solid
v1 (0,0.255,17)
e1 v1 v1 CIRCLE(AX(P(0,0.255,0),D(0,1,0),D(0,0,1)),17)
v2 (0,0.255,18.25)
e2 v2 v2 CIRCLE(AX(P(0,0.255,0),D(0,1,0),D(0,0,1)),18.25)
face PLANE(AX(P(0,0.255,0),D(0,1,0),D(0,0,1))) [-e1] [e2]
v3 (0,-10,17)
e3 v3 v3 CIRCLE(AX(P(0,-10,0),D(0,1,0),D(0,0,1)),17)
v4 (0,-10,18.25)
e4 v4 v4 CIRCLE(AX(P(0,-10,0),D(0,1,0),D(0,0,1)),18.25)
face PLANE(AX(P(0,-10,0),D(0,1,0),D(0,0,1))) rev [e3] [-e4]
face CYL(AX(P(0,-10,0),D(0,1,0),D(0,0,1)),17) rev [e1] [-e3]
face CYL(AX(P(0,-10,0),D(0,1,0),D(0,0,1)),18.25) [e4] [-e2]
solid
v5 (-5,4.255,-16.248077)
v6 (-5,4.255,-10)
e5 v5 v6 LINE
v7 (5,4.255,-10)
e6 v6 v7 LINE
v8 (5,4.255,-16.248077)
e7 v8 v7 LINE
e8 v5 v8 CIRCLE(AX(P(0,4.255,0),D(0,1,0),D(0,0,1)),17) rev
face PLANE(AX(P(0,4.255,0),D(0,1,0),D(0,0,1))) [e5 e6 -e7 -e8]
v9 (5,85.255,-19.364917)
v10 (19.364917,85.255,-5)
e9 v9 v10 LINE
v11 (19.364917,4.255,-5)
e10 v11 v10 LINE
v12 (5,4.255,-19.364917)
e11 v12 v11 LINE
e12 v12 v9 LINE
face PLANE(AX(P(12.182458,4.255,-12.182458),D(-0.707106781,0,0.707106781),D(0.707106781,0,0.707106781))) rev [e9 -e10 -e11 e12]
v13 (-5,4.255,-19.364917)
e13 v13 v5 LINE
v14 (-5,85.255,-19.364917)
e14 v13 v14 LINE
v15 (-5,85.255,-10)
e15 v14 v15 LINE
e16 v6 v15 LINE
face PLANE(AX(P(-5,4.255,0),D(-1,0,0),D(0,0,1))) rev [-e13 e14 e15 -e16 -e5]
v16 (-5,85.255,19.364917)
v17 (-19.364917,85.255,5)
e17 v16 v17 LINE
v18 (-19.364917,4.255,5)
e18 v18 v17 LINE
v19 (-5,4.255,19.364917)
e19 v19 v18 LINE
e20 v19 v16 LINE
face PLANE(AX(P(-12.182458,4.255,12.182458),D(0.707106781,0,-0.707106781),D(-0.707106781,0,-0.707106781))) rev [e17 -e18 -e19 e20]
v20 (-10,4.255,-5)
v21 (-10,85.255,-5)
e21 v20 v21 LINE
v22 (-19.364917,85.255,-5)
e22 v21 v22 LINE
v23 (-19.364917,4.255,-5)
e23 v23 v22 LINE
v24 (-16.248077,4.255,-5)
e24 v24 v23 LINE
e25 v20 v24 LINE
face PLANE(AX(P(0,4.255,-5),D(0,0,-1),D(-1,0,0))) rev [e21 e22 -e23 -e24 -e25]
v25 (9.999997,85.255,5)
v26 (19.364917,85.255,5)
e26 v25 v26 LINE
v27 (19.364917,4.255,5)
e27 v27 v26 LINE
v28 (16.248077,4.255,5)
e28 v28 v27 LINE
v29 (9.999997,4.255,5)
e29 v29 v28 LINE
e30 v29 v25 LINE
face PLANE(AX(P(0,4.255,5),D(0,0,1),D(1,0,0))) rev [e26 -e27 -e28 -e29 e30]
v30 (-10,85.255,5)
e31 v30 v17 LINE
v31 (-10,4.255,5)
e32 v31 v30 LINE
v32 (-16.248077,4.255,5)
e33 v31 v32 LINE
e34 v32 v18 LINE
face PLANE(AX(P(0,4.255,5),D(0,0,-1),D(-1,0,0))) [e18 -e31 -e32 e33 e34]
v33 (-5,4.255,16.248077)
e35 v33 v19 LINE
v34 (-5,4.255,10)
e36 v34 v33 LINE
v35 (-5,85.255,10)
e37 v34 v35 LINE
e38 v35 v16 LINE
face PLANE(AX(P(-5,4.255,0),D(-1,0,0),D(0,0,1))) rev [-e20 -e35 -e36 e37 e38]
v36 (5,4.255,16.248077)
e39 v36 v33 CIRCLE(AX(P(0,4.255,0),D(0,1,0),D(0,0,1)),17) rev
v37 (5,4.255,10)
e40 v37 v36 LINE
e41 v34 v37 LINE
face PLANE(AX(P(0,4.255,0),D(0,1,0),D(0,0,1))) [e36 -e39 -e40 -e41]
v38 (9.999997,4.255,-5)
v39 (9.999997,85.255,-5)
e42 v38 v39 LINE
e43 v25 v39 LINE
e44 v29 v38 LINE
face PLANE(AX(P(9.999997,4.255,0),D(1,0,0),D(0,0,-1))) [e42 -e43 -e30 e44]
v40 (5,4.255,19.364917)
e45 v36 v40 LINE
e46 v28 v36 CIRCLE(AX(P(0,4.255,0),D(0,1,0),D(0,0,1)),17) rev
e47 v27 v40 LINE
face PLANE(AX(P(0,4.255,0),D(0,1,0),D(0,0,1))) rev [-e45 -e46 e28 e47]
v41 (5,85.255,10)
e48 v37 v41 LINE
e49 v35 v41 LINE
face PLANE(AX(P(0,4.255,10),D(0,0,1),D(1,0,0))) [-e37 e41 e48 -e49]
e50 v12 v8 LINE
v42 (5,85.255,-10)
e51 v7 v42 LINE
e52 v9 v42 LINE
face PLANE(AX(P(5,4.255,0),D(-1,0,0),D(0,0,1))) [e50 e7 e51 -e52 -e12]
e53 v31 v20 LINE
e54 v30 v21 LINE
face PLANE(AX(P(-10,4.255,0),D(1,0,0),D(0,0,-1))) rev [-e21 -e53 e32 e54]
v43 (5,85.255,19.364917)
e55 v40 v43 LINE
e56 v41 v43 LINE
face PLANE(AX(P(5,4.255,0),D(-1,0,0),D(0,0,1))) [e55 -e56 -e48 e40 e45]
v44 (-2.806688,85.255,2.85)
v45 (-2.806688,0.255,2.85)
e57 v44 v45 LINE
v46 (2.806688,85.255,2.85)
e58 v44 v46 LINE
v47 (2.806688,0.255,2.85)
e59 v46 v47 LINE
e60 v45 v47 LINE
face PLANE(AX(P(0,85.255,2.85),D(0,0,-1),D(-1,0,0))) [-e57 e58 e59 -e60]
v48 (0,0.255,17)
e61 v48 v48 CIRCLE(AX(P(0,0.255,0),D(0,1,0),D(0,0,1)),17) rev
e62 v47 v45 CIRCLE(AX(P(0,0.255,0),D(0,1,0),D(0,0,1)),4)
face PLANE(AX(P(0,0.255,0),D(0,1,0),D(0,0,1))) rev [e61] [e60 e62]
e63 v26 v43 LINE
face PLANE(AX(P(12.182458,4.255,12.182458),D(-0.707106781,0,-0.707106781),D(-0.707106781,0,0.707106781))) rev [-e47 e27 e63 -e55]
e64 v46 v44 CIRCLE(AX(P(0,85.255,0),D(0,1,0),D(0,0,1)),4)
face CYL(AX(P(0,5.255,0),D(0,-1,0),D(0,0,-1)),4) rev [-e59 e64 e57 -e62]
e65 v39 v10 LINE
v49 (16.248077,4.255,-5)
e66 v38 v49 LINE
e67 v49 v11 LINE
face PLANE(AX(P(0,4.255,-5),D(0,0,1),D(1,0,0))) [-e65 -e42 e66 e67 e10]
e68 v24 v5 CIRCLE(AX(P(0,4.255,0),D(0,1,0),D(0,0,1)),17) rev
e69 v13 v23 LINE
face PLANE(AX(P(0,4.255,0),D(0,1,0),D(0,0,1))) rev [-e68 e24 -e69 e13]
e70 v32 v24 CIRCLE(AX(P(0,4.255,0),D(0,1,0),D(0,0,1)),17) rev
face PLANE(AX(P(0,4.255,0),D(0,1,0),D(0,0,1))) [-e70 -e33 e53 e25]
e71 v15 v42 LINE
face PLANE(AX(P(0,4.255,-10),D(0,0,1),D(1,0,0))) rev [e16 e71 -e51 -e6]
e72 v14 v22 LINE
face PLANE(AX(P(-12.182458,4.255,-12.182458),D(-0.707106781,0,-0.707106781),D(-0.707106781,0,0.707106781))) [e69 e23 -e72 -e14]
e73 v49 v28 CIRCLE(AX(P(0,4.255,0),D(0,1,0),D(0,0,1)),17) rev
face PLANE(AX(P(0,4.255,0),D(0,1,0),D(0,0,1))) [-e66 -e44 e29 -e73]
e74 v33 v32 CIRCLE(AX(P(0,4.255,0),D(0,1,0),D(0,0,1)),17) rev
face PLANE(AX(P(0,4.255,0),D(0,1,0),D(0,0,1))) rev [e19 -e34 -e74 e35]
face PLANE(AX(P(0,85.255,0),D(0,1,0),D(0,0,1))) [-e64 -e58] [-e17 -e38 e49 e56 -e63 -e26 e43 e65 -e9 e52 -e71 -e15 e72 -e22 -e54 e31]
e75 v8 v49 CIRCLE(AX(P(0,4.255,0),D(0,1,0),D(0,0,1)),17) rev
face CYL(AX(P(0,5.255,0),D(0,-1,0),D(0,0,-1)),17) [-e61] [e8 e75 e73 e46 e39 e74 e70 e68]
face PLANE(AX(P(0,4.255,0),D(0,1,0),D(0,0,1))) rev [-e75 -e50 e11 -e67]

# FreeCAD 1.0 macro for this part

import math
import FreeCAD as App
import Part
import Sketcher
from FreeCAD import Vector
Q = App.Units.Quantity

doc = App.newDocument("Part")
body = doc.addObject("PartDesign::Body", "Body")

# Sketch on XZ plane
sketch1 = body.newObject("Sketcher::SketchObject", "Sketch")
sketch1.AttachmentSupport = (doc.getObject("XZ_Plane"), [""])
sketch1.MapMode = "FlatFace"
sketch1.addGeometry([
    Part.Circle(Vector(0, 0, 0), Vector(0, 0, 1), 18),
    Part.Circle(Vector(0, 0, 0), Vector(0, 0, 1), 17),
], False)
sketch1.addConstraint([
    Sketcher.Constraint("Coincident", 0, 3, -1, 1),
    Sketcher.Constraint("Coincident", 1, 3, -1, 1),
    Sketcher.Constraint("Diameter", 1, Q("34 mm")),
    Sketcher.Constraint("Diameter", 0, Q("36.5 mm")),
])
pad1 = body.newObject("PartDesign::Pad", "Pad")
pad1.Profile = sketch1
pad1.Type = "TwoLengths"
pad1.Length = 0.255
pad1.Length2 = 10
pad1.Reversed = True
body2 = doc.addObject("PartDesign::Body", "Body001")

# Sketch on XZ plane
sketch2 = body2.newObject("Sketcher::SketchObject", "Sketch001")
sketch2.AttachmentSupport = (doc.getObject("XZ_Plane001"), [""])
sketch2.MapMode = "FlatFace"
sketch2.AttachmentOffset = App.Placement(Vector(0, 0, -0.255), App.Rotation())
sketch2.addGeometry([
    Part.Circle(Vector(0, 0, 0), Vector(0, 0, 1), 17),
    Part.ArcOfCircle(Part.Circle(Vector(0, 0, 0), Vector(0, 0, 1), 4), math.radians(-59), math.radians(239)),
    Part.LineSegment(Vector(-2.1, -3.4, 0), Vector(2.1, -3.4, 0)),
], False)
sketch2.addConstraint([
    Sketcher.Constraint("Coincident", 1, 1, 2, 2),
    Sketcher.Constraint("Coincident", 2, 1, 1, 2),
    Sketcher.Constraint("Horizontal", 2),
    Sketcher.Constraint("Coincident", 0, 3, -1, 1),
    Sketcher.Constraint("Coincident", 1, 3, -1, 1),
    Sketcher.Constraint("Diameter", 0, Q("34 mm")),
    Sketcher.Constraint("Radius", 1, Q("4 mm")),
    Sketcher.Constraint("DistanceY", 1, 1, -1, 1, Q("3.425 mm")),
])
pad2 = body2.newObject("PartDesign::Pad", "Pad001")
pad2.Profile = sketch2
pad2.Length = 5
pad2.Reversed = True

# Sketch on XZ plane
sketch3 = body2.newObject("Sketcher::SketchObject", "Sketch002")
sketch3.AttachmentSupport = (doc.getObject("XZ_Plane001"), [""])
sketch3.MapMode = "FlatFace"
sketch3.AttachmentOffset = App.Placement(Vector(0, 0, -5.255), App.Rotation())
sketch3.addGeometry(Part.Circle(Vector(0, 0, 0), Vector(0, 0, 1), 20), False)
sketch3.addConstraint([
    Sketcher.Constraint("Coincident", 0, 3, -1, 1),
    Sketcher.Constraint("Diameter", 0, Q("40 mm")),
])
pad3 = body2.newObject("PartDesign::Pad", "Pad002")
pad3.Profile = sketch3
pad3.Type = "TwoLengths"
pad3.Length = 80
pad3.Length2 = 1
pad3.Reversed = True

# Sketch on XZ plane
sketch4 = body2.newObject("Sketcher::SketchObject", "Sketch003")
sketch4.AttachmentSupport = (doc.getObject("XZ_Plane001"), [""])
sketch4.MapMode = "FlatFace"
sketch4.AttachmentOffset = App.Placement(Vector(0, 0, -85.255), App.Rotation())
sketch4.addGeometry(Part.Circle(Vector(0, 0, 0), Vector(0, 0, 1), 4), False)
sketch4.addConstraint([
    Sketcher.Constraint("Coincident", 0, 3, -1, 1),
    Sketcher.Constraint("Diameter", 0, Q("8 mm")),
])
pocket1 = body2.newObject("PartDesign::Pocket", "Pocket")
pocket1.Profile = sketch4
pocket1.Length = 96.3
pocket1.Reversed = True

# Sketch on XZ plane
sketch5 = body2.newObject("Sketcher::SketchObject", "Sketch004")
sketch5.AttachmentSupport = (doc.getObject("XZ_Plane001"), [""])
sketch5.MapMode = "FlatFace"
sketch5.AttachmentOffset = App.Placement(Vector(0, 0, -85.255), App.Rotation())
sketch5.addGeometry([
    Part.ArcOfCircle(Part.Circle(Vector(0, 0, 0), Vector(0, 0, 1), 20), math.radians(76), math.radians(104)),  # 0
    Part.LineSegment(Vector(5, 19, 0), Vector(5, 10, 0)),  # 1
    Part.LineSegment(Vector(5, 10, 0), Vector(-5, 10, 0)),  # 2
    Part.LineSegment(Vector(-5, 10, 0), Vector(-5, 19, 0)),  # 3
    Part.ArcOfCircle(Part.Circle(Vector(0, 0, 0), Vector(0, 0, 1), 20), math.radians(166), math.radians(194)),  # 4
    Part.LineSegment(Vector(-19, 5, 0), Vector(-10, 5, 0)),  # 5
    Part.LineSegment(Vector(-10, 5, 0), Vector(-10, -5, 0)),  # 6
    Part.LineSegment(Vector(-10, -5, 0), Vector(-19, -5, 0)),  # 7
    Part.LineSegment(Vector(5, -10, 0), Vector(5, -19, 0)),  # 8
    Part.ArcOfCircle(Part.Circle(Vector(0, 0, 0), Vector(0, 0, 1), 20), math.radians(-104), math.radians(-76)),  # 9
    Part.LineSegment(Vector(-5, -19, 0), Vector(-5, -10, 0)),  # 10
    Part.LineSegment(Vector(-5, -10, 0), Vector(5, -10, 0)),  # 11
    Part.LineSegment(Vector(10, -5, 0), Vector(10, 5, 0)),  # 12
    Part.LineSegment(Vector(10, 5, 0), Vector(19, 5, 0)),  # 13
    Part.ArcOfCircle(Part.Circle(Vector(0, 0, 0), Vector(0, 0, 1), 20), math.radians(0), math.radians(14.48)),  # 14
    Part.ArcOfCircle(Part.Circle(Vector(0, 0, 0), Vector(0, 0, 1), 20), math.radians(-14.48), math.radians(0)),  # 15
    Part.LineSegment(Vector(19, -5, 0), Vector(10, -5, 0)),  # 16
], False)
sketch5.addConstraint([
    Sketcher.Constraint("Coincident", 0, 1, 1, 1),
    Sketcher.Constraint("Coincident", 1, 2, 2, 1),
    Sketcher.Constraint("Coincident", 2, 2, 3, 1),
    Sketcher.Constraint("Coincident", 3, 2, 0, 2),
    Sketcher.Constraint("Coincident", 4, 1, 5, 1),
    Sketcher.Constraint("Coincident", 5, 2, 6, 1),
    Sketcher.Constraint("Coincident", 6, 2, 7, 1),
    Sketcher.Constraint("Coincident", 7, 2, 4, 2),
    Sketcher.Constraint("Coincident", 8, 2, 9, 2),
    Sketcher.Constraint("Coincident", 9, 1, 10, 1),
    Sketcher.Constraint("Coincident", 10, 2, 11, 1),
    Sketcher.Constraint("Coincident", 11, 2, 8, 1),
    Sketcher.Constraint("Coincident", 12, 2, 13, 1),
    Sketcher.Constraint("Coincident", 13, 2, 14, 2),
    Sketcher.Constraint("Tangent", 14, 1, 15, 2),
    Sketcher.Constraint("Coincident", 15, 1, 16, 1),
    Sketcher.Constraint("Coincident", 16, 2, 12, 1),
    Sketcher.Constraint("Vertical", 1),
    Sketcher.Constraint("Horizontal", 2),
    Sketcher.Constraint("Vertical", 3),
    Sketcher.Constraint("Horizontal", 5),
    Sketcher.Constraint("Vertical", 6),
    Sketcher.Constraint("Horizontal", 7),
    Sketcher.Constraint("Vertical", 8),
    Sketcher.Constraint("Vertical", 10),
    Sketcher.Constraint("Horizontal", 11),
    Sketcher.Constraint("Vertical", 12),
    Sketcher.Constraint("Horizontal", 13),
    Sketcher.Constraint("Horizontal", 16),
    Sketcher.Constraint("Coincident", 0, 3, -1, 1),
    Sketcher.Constraint("Coincident", 4, 3, -1, 1),
    Sketcher.Constraint("Coincident", 9, 3, -1, 1),
    Sketcher.Constraint("Coincident", 14, 3, -1, 1),
    Sketcher.Constraint("Equal", 0, 4),
    Sketcher.Constraint("Equal", 4, 9),
    Sketcher.Constraint("Equal", 9, 14),
    Sketcher.Constraint("Equal", 14, 15),
    Sketcher.Constraint("Symmetric", 1, 2, 10, 2, -1, 1),
    Sketcher.Constraint("Symmetric", 6, 2, 12, 2, -1, 1),
    Sketcher.Constraint("PointOnObject", 14, 1, -1),
    Sketcher.Constraint("Horizontal", 0, 1, 3, 2),
    Sketcher.Constraint("Horizontal", 8, 2, 9, 1),
    Sketcher.Constraint("Horizontal", 5, 2, 12, 2),
    Sketcher.Constraint("Horizontal", 7, 2, 15, 1),
    Sketcher.Constraint("Equal", 7, 1),
    Sketcher.Constraint("Equal", 11, 6),
    Sketcher.Constraint("Radius", 0, Q("20 mm")),
    Sketcher.Constraint("DistanceX", 2, 2, 2, 1, Q("10 mm")),
    Sketcher.Constraint("DistanceY", -1, 1, 1, 2, Q("10 mm")),
])
pocket2 = body2.newObject("PartDesign::Pocket", "Pocket001")
pocket2.Profile = sketch5
pocket2.Length = 81
pocket2.Reversed = True

# Sketch on XZ plane
sketch6 = body2.newObject("Sketcher::SketchObject", "Sketch005")
sketch6.AttachmentSupport = (doc.getObject("XZ_Plane001"), [""])
sketch6.MapMode = "FlatFace"
sketch6.AttachmentOffset = App.Placement(Vector(0, 0, -85.255), App.Rotation())
sketch6.addGeometry([
    Part.LineSegment(Vector(-19, -5, 0), Vector(-5, -19, 0)),  # 0
    Part.ArcOfCircle(Part.Circle(Vector(0, 0, 0), Vector(0, 0, 1), 20), math.radians(-166), math.radians(-104)),  # 1
    Part.LineSegment(Vector(5, -19, 0), Vector(19, -5, 0)),  # 2
    Part.ArcOfCircle(Part.Circle(Vector(0, 0, 0), Vector(0, 0, 1), 20), math.radians(-76), math.radians(-14)),  # 3
    Part.LineSegment(Vector(19, 5, 0), Vector(5, 19, 0)),  # 4
    Part.ArcOfCircle(Part.Circle(Vector(0, 0, 0), Vector(0, 0, 1), 20), math.radians(14), math.radians(76)),  # 5
    Part.LineSegment(Vector(-5, 19, 0), Vector(-19, 5, 0)),  # 6
    Part.ArcOfCircle(Part.Circle(Vector(0, 0, 0), Vector(0, 0, 1), 20), math.radians(104), math.radians(166)),  # 7
], False)
sketch6.addConstraint([
    Sketcher.Constraint("Coincident", 0, 1, 1, 1),
    Sketcher.Constraint("Coincident", 1, 2, 0, 2),
    Sketcher.Constraint("Coincident", 2, 1, 3, 1),
    Sketcher.Constraint("Coincident", 3, 2, 2, 2),
    Sketcher.Constraint("Coincident", 4, 1, 5, 1),
    Sketcher.Constraint("Coincident", 5, 2, 4, 2),
    Sketcher.Constraint("Coincident", 6, 1, 7, 1),
    Sketcher.Constraint("Coincident", 7, 2, 6, 2),
    Sketcher.Constraint("Coincident", 1, 3, -1, 1),
    Sketcher.Constraint("Coincident", 3, 3, -1, 1),
    Sketcher.Constraint("Coincident", 5, 3, -1, 1),
    Sketcher.Constraint("Coincident", 7, 3, -1, 1),
    Sketcher.Constraint("Equal", 1, 3),
    Sketcher.Constraint("Equal", 3, 5),
    Sketcher.Constraint("Equal", 5, 7),
    Sketcher.Constraint("Perpendicular", 0, 2),
    Sketcher.Constraint("Perpendicular", 2, 4),
    Sketcher.Constraint("Perpendicular", 4, 6),
    Sketcher.Constraint("Horizontal", 1, 2, 2, 1),
    Sketcher.Constraint("Horizontal", 0, 1, 3, 2),
    Sketcher.Constraint("Horizontal", 5, 2, 6, 1),
    Sketcher.Constraint("Vertical", 3, 2, 4, 1),
    Sketcher.Constraint("Radius", 1, Q("20 mm")),
    Sketcher.Constraint("DistanceY", 0, 1, -1, 1, Q("5 mm")),
])
pocket3 = body2.newObject("PartDesign::Pocket", "Pocket002")
pocket3.Profile = sketch6
pocket3.Length = 81
pocket3.Reversed = True

# Sketch on XZ plane
sketch7 = body2.newObject("Sketcher::SketchObject", "Sketch006")
sketch7.AttachmentSupport = (doc.getObject("XZ_Plane001"), [""])
sketch7.MapMode = "FlatFace"
sketch7.AttachmentOffset = App.Placement(Vector(0, 0, -0.255), App.Rotation())
sketch7.addGeometry([
    Part.ArcOfCircle(Part.Circle(Vector(0, 0, 0), Vector(0, 0, 1), 4), math.radians(45), math.radians(135)),
    Part.LineSegment(Vector(-2.8, 2.9, 0), Vector(2.8, 2.9, 0)),
], False)
sketch7.addConstraint([
    Sketcher.Constraint("Coincident", 0, 1, 1, 2),
    Sketcher.Constraint("Coincident", 1, 1, 0, 2),
    Sketcher.Constraint("Horizontal", 1),
    Sketcher.Constraint("Coincident", 0, 3, -1, 1),
    Sketcher.Constraint("Radius", 0, Q("4 mm")),
    Sketcher.Constraint("DistanceY", -1, 1, 0, 1, Q("2.85 mm")),
])
pad4 = body2.newObject("PartDesign::Pad", "Pad003")
pad4.Profile = sketch7
pad4.Length = 85
pad4.Reversed = True

doc.recompute()
